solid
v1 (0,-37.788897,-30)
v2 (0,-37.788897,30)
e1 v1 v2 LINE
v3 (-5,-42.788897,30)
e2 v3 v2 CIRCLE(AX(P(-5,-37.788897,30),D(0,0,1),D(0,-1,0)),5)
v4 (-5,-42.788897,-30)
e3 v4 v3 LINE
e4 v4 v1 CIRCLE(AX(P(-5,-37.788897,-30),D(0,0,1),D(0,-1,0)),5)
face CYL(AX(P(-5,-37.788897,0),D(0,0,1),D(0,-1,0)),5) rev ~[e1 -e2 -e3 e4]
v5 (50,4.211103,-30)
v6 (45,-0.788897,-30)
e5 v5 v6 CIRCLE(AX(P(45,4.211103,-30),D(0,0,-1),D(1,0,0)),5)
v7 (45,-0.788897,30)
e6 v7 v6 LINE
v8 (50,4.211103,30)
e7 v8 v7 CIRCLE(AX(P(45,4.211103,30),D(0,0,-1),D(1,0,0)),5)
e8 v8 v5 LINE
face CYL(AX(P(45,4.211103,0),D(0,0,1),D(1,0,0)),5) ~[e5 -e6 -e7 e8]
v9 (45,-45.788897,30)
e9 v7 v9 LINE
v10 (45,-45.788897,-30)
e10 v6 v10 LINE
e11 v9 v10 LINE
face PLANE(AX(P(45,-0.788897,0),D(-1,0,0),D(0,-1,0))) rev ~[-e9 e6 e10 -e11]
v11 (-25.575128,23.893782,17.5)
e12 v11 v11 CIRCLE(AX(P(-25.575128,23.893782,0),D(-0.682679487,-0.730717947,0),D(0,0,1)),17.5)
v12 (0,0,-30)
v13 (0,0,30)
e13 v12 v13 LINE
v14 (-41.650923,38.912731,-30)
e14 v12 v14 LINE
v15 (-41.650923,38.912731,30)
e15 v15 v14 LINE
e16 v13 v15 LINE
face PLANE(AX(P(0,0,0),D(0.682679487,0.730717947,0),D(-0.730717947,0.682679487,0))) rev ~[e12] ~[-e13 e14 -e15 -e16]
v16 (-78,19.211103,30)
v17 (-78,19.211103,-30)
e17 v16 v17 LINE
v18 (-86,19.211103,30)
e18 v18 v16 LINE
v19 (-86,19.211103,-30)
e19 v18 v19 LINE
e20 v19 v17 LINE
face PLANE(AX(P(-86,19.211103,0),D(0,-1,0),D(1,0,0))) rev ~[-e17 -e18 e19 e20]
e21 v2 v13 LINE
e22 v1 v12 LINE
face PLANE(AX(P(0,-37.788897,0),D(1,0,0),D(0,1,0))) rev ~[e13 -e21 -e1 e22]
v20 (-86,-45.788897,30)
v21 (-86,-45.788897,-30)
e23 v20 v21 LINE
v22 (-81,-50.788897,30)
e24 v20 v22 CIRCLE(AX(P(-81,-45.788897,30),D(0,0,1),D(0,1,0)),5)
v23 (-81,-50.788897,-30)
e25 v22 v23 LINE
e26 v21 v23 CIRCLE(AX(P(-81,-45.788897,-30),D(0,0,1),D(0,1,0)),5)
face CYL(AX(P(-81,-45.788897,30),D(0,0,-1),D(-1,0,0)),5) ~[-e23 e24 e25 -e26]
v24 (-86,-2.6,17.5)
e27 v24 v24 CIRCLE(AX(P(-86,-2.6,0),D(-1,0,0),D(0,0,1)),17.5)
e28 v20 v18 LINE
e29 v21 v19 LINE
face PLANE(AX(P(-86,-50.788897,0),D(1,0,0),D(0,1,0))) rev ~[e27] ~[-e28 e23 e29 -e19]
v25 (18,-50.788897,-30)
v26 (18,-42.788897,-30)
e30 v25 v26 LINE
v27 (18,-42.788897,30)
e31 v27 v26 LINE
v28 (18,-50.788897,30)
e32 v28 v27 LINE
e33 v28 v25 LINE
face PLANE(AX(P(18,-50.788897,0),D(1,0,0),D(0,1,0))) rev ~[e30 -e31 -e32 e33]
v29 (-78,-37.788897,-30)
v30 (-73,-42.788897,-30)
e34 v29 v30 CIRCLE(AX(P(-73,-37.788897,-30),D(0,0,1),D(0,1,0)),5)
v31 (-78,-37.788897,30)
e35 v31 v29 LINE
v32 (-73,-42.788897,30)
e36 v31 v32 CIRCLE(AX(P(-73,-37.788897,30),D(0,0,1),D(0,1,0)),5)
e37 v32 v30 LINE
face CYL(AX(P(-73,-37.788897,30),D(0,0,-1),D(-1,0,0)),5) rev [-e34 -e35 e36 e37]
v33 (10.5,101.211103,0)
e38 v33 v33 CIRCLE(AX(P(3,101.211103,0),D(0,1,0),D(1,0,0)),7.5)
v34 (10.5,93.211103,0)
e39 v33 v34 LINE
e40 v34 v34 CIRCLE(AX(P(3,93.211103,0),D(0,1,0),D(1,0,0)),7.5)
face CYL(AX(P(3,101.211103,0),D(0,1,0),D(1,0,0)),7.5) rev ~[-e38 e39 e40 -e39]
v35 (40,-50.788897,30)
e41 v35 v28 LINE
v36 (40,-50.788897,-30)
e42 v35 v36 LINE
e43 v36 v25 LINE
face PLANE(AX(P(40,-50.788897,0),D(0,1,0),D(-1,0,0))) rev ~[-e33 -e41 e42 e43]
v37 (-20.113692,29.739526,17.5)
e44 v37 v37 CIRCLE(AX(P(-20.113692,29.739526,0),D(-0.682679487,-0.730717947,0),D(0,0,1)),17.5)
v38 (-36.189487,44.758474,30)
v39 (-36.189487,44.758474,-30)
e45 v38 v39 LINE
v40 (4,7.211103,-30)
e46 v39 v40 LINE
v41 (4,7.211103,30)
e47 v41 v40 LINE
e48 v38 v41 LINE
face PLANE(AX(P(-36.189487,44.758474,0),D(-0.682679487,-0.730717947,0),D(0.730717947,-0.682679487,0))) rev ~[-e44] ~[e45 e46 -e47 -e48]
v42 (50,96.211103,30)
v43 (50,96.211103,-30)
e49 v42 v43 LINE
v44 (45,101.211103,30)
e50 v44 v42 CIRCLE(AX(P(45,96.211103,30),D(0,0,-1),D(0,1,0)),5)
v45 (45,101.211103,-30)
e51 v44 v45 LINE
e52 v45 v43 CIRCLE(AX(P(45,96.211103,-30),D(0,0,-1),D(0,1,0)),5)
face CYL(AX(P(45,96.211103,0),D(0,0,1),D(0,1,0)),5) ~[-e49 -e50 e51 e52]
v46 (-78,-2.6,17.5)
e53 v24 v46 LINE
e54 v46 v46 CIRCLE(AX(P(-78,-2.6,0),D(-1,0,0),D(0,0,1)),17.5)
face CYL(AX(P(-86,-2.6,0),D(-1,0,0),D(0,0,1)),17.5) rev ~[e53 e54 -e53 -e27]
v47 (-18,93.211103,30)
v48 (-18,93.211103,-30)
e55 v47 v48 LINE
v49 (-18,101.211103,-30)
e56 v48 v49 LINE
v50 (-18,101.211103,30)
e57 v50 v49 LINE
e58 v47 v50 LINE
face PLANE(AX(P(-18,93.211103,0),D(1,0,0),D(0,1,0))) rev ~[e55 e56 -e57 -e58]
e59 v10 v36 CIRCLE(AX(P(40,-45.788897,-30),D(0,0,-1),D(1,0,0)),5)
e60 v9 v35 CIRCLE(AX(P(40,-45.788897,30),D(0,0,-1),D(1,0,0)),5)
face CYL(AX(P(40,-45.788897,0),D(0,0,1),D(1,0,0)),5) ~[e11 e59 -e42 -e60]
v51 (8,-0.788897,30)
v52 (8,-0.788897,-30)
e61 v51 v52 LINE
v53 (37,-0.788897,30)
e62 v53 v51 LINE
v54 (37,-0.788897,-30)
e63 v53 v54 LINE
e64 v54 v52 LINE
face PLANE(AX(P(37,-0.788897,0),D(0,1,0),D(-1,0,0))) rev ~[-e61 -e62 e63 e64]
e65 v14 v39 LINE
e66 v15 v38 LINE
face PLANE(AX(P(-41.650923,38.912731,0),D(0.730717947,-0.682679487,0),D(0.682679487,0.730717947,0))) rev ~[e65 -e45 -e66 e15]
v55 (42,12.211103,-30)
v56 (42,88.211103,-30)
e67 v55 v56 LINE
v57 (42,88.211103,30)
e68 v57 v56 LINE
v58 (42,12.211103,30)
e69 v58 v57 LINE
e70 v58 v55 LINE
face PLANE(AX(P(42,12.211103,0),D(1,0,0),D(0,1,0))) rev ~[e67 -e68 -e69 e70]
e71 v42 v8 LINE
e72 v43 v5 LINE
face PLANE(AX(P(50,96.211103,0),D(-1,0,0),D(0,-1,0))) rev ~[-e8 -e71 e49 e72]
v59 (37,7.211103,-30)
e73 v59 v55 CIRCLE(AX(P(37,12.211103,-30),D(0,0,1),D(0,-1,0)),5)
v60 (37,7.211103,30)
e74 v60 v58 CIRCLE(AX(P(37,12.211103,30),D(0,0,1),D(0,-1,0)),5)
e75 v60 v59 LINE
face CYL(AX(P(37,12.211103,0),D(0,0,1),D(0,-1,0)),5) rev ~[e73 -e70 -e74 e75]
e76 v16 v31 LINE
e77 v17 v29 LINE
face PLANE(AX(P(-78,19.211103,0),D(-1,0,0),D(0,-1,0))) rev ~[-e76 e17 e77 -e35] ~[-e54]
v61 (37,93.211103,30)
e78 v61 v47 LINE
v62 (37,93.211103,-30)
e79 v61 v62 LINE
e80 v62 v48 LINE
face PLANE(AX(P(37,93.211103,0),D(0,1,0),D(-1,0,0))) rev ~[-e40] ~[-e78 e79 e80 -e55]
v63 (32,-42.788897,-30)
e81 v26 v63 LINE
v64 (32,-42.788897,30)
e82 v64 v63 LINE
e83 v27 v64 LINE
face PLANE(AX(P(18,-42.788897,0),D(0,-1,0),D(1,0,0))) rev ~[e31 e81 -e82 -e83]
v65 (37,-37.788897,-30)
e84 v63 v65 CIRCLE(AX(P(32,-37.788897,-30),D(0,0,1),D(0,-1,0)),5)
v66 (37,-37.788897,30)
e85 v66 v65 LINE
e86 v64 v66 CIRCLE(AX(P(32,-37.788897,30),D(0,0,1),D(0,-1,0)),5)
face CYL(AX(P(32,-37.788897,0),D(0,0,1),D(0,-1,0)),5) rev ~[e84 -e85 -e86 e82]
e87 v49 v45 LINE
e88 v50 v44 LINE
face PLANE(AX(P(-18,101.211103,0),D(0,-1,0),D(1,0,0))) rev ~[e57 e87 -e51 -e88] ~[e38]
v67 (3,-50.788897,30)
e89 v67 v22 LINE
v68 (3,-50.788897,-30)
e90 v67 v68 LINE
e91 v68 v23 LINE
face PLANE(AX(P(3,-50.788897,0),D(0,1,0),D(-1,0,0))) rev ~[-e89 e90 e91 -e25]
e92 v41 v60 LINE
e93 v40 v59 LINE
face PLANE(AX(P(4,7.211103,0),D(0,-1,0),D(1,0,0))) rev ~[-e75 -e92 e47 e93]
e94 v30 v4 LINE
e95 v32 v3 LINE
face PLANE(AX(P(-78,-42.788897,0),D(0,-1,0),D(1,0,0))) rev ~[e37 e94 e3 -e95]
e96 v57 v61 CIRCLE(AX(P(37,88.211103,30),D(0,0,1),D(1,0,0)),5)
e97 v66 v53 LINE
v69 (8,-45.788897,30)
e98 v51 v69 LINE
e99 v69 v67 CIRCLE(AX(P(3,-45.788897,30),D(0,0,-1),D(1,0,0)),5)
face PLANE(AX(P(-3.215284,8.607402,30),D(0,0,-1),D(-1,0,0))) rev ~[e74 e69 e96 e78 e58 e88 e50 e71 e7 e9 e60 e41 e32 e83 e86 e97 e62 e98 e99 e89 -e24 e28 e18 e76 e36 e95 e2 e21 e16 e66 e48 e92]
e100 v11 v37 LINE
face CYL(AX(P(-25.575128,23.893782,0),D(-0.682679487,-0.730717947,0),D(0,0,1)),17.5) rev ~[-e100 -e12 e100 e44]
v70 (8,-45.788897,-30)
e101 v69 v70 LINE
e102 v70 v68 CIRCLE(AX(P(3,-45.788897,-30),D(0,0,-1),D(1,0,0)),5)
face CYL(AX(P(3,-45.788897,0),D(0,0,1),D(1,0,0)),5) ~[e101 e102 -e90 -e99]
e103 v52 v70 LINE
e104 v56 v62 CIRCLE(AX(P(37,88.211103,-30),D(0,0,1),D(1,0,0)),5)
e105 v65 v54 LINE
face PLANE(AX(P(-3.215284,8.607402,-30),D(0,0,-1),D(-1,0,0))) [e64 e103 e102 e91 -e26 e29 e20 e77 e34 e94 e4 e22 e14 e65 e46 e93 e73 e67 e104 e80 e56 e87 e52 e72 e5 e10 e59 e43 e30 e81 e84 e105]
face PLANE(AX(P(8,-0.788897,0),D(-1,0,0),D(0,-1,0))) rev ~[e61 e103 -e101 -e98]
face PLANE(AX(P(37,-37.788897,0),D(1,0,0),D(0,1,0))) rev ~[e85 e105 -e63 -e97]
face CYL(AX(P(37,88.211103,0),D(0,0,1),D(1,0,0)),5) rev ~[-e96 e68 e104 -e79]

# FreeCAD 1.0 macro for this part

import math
import FreeCAD as App
import Part
import Sketcher

V = App.Vector


def edges_at(feature, points):
    """Names of the edges that pass closest to the given points."""
    edges = feature.Shape.Edges
    near = lambda p: min(range(len(edges)), key=lambda i: edges[i].distToShape(Part.Vertex(*p))[0])
    return sorted({f"Edge{near(p) + 1}" for p in points})

doc = App.newDocument("Part")
body = doc.addObject("PartDesign::Body", "Body")

# Sketch on XY plane
sketch1 = body.newObject("Sketcher::SketchObject", "Sketch")
sketch1.AttachmentSupport = (doc.getObject("XY_Plane"), [""])
sketch1.MapMode = "FlatFace"
sketch1.addGeometry([
    Part.LineSegment(V(-41.650923, 38.912731, 0), V(0, 0, 0)),  # 0
    Part.LineSegment(V(0, 0, 0), V(0, -37.788897, 0)),  # 1
    Part.ArcOfCircle(Part.Circle(V(-5, -37.788897, 0), V(0, 0, 1), 5), math.radians(-90), math.radians(0)),  # 2
    Part.LineSegment(V(-5, -42.788897, 0), V(-78, -42.788897, 0)),  # 3
    Part.LineSegment(V(-78, -42.788897, 0), V(-78, 19.211103, 0)),  # 4
    Part.LineSegment(V(-78, 19.211103, 0), V(-86, 19.211103, 0)),  # 5
    Part.LineSegment(V(-86, 19.211103, 0), V(-86, -50.788897, 0)),  # 6
    Part.LineSegment(V(-86, -50.788897, 0), V(3, -50.788897, 0)),  # 7
    Part.ArcOfCircle(Part.Circle(V(3, -45.788897, 0), V(0, 0, 1), 5), math.radians(-90), math.radians(0)),  # 8
    Part.LineSegment(V(8, -45.788897, 0), V(8, -0.788897, 0)),  # 9
    Part.LineSegment(V(8, -0.788897, 0), V(37, -0.788897, 0)),  # 10
    Part.LineSegment(V(37, -0.788897, 0), V(37, -37.788897, 0)),  # 11
    Part.ArcOfCircle(Part.Circle(V(32, -37.788897, 0), V(0, 0, 1), 5), math.radians(-90), math.radians(0)),  # 12
    Part.LineSegment(V(32, -42.788897, 0), V(18, -42.788897, 0)),  # 13
    Part.LineSegment(V(18, -42.788897, 0), V(18, -50.788897, 0)),  # 14
    Part.LineSegment(V(18, -50.788897, 0), V(40, -50.788897, 0)),  # 15
    Part.ArcOfCircle(Part.Circle(V(40, -45.788897, 0), V(0, 0, 1), 5), math.radians(-90), math.radians(0)),  # 16
    Part.LineSegment(V(45, -45.788897, 0), V(45, -0.788897, 0)),  # 17
    Part.ArcOfCircle(Part.Circle(V(45, 4.211103, 0), V(0, 0, 1), 5), math.radians(-90), math.radians(0)),  # 18
    Part.LineSegment(V(50, 4.211103, 0), V(50, 96.211103, 0)),  # 19
    Part.ArcOfCircle(Part.Circle(V(45, 96.211103, 0), V(0, 0, 1), 5), math.radians(0), math.radians(90)),  # 20
    Part.LineSegment(V(45, 101.211103, 0), V(-18, 101.211103, 0)),  # 21
    Part.LineSegment(V(-18, 101.211103, 0), V(-18, 93.211103, 0)),  # 22
    Part.LineSegment(V(-18, 93.211103, 0), V(37, 93.211103, 0)),  # 23
    Part.ArcOfCircle(Part.Circle(V(37, 88.211103, 0), V(0, 0, 1), 5), math.radians(0), math.radians(90)),  # 24
    Part.LineSegment(V(42, 88.211103, 0), V(42, 12.211103, 0)),  # 25
    Part.ArcOfCircle(Part.Circle(V(37, 12.211103, 0), V(0, 0, 1), 5), math.radians(-90), math.radians(0)),  # 26
    Part.LineSegment(V(37, 7.211103, 0), V(4, 7.211103, 0)),  # 27
    Part.LineSegment(V(4, 7.211103, 0), V(-36.189487, 44.758474, 0)),  # 28
    Part.LineSegment(V(-36.189487, 44.758474, 0), V(-41.650923, 38.912731, 0)),  # 29
], False)
sketch1.addConstraint([
    Sketcher.Constraint("Coincident", 0, 2, 1, 1),
    Sketcher.Constraint("Tangent", 1, 2, 2, 2),
    Sketcher.Constraint("Tangent", 2, 1, 3, 1),
    Sketcher.Constraint("Coincident", 3, 2, 4, 1),
    Sketcher.Constraint("Coincident", 4, 2, 5, 1),
    Sketcher.Constraint("Coincident", 5, 2, 6, 1),
    Sketcher.Constraint("Coincident", 6, 2, 7, 1),
    Sketcher.Constraint("Tangent", 7, 2, 8, 1),
    Sketcher.Constraint("Tangent", 8, 2, 9, 1),
    Sketcher.Constraint("Coincident", 9, 2, 10, 1),
    Sketcher.Constraint("Coincident", 10, 2, 11, 1),
    Sketcher.Constraint("Tangent", 11, 2, 12, 2),
    Sketcher.Constraint("Tangent", 12, 1, 13, 1),
    Sketcher.Constraint("Coincident", 13, 2, 14, 1),
    Sketcher.Constraint("Coincident", 14, 2, 15, 1),
    Sketcher.Constraint("Tangent", 15, 2, 16, 1),
    Sketcher.Constraint("Tangent", 16, 2, 17, 1),
    Sketcher.Constraint("Coincident", 17, 2, 18, 1),
    Sketcher.Constraint("Tangent", 18, 2, 19, 1),
    Sketcher.Constraint("Tangent", 19, 2, 20, 1),
    Sketcher.Constraint("Tangent", 20, 2, 21, 1),
    Sketcher.Constraint("Coincident", 21, 2, 22, 1),
    Sketcher.Constraint("Coincident", 22, 2, 23, 1),
    Sketcher.Constraint("Tangent", 23, 2, 24, 2),
    Sketcher.Constraint("Tangent", 24, 1, 25, 1),
    Sketcher.Constraint("Tangent", 25, 2, 26, 2),
    Sketcher.Constraint("Tangent", 26, 1, 27, 1),
    Sketcher.Constraint("Coincident", 27, 2, 28, 1),
    Sketcher.Constraint("Coincident", 28, 2, 29, 1),
    Sketcher.Constraint("Coincident", 29, 2, 0, 1),
    Sketcher.Constraint("Vertical", 1),
    Sketcher.Constraint("Horizontal", 3),
    Sketcher.Constraint("Vertical", 4),
    Sketcher.Constraint("Horizontal", 5),
    Sketcher.Constraint("Vertical", 6),
    Sketcher.Constraint("Horizontal", 7),
    Sketcher.Constraint("Vertical", 9),
    Sketcher.Constraint("Horizontal", 10),
    Sketcher.Constraint("Vertical", 11),
    Sketcher.Constraint("Horizontal", 13),
    Sketcher.Constraint("Vertical", 14),
    Sketcher.Constraint("Horizontal", 15),
    Sketcher.Constraint("Vertical", 17),
    Sketcher.Constraint("Vertical", 19),
    Sketcher.Constraint("Horizontal", 21),
    Sketcher.Constraint("Vertical", 22),
    Sketcher.Constraint("Horizontal", 23),
    Sketcher.Constraint("Vertical", 25),
    Sketcher.Constraint("Horizontal", 27),
    Sketcher.Constraint("Coincident", 0, 2, -1, 1),
    Sketcher.Constraint("Equal", 2, 8),
    Sketcher.Constraint("Equal", 8, 12),
    Sketcher.Constraint("Equal", 12, 16),
    Sketcher.Constraint("Equal", 16, 18),
    Sketcher.Constraint("Equal", 18, 20),
    Sketcher.Constraint("Equal", 20, 24),
    Sketcher.Constraint("Equal", 24, 26),
    Sketcher.Constraint("Parallel", 0, 28),
    Sketcher.Constraint("Perpendicular", 28, 29),
    Sketcher.Constraint("Horizontal", 2, 3, 12, 3),
    Sketcher.Constraint("Horizontal", 8, 3, 16, 3),
    Sketcher.Constraint("Horizontal", 10, 2, 17, 2),
    Sketcher.Constraint("Vertical", 26, 3, 10, 2),
    Sketcher.Constraint("Vertical", 20, 3, 16, 2),
    Sketcher.Constraint("Equal", 5, 14),
    Sketcher.Constraint("Equal", 14, 22),
    Sketcher.Constraint("Radius", 2, 5.0),
    Sketcher.Constraint("DistanceX", 3, 2, 3, 1, 73.0),
    Sketcher.Constraint("DistanceX", 5, 2, 5, 1, 8.0),
    Sketcher.Constraint("DistanceX", 7, 1, 7, 2, 89.0),
    Sketcher.Constraint("DistanceX", 10, 1, 10, 2, 29.0),
    Sketcher.Constraint("DistanceX", 13, 2, 13, 1, 14.0),
    Sketcher.Constraint("DistanceX", 15, 1, 15, 2, 22.0),
    Sketcher.Constraint("DistanceX", 21, 2, 21, 1, 63.0),
    Sketcher.Constraint("DistanceX", 27, 2, 27, 1, 33.0),
    Sketcher.Constraint("DistanceY", 4, 1, 4, 2, 62.0),
    Sketcher.Constraint("DistanceY", 9, 1, 9, 2, 45.0),
    Sketcher.Constraint("DistanceY", 19, 1, 19, 2, 92.0),
    Sketcher.Constraint("DistanceY", 25, 2, 25, 1, 76.0),
    Sketcher.Constraint("Distance", 0, 57.0),
    Sketcher.Constraint("Distance", 28, 55.0),
    Sketcher.Constraint("Distance", 29, 8.0),
])
pad1 = body.newObject("PartDesign::Pad", "Pad")
pad1.Profile = sketch1
pad1.Length = 60
pad1.Midplane = True

# Sketch on an angled plane
sketch2 = body.newObject("Sketcher::SketchObject", "Sketch001")
sketch2.Placement = App.Placement(V(0, 0, 0), App.Rotation(V(0, 0, 1), V(-0.730717947, 0.682679487, 0), V(-0.682679487, -0.730717947, 0), "ZXY"))
sketch2.addGeometry(Part.Circle(V(0, 35, 0), V(0, 0, 1), 17.5), False)
sketch2.addConstraint([
    Sketcher.Constraint("PointOnObject", 0, 3, -2),
    Sketcher.Constraint("Diameter", 0, 35.0),
    Sketcher.Constraint("DistanceY", -1, 1, 0, 3, 35.0),
])
pocket1 = body.newObject("PartDesign::Pocket", "Pocket")
pocket1.Profile = sketch2
pocket1.Length = 8

# Sketch on YZ plane
sketch3 = body.newObject("Sketcher::SketchObject", "Sketch002")
sketch3.AttachmentSupport = (doc.getObject("YZ_Plane"), [""])
sketch3.MapMode = "FlatFace"
sketch3.AttachmentOffset = App.Placement(V(0, 0, -86), App.Rotation())
sketch3.addGeometry(Part.Circle(V(-2.6, 0, 0), V(0, 0, 1), 17.5), False)
sketch3.addConstraint([
    Sketcher.Constraint("PointOnObject", 0, 3, -1),
    Sketcher.Constraint("Diameter", 0, 35.0),
    Sketcher.Constraint("DistanceX", 0, 3, -1, 1, 2.6),
])
pocket2 = body.newObject("PartDesign::Pocket", "Pocket001")
pocket2.Profile = sketch3
pocket2.Length = 8
pocket2.Reversed = True
doc.recompute()

fillet = body.newObject("PartDesign::Fillet", "Fillet")
fillet.Base = (pocket2, edges_at(pocket2, [(-78, -42.789, 0)]))
fillet.Radius = 5
doc.recompute()

fillet2 = body.newObject("PartDesign::Fillet", "Fillet001")
fillet2.Base = (fillet, edges_at(fillet, [(-86, -50.789, 0)]))
fillet2.Radius = 5

# Sketch on XZ plane
sketch4 = body.newObject("Sketcher::SketchObject", "Sketch003")
sketch4.AttachmentSupport = (doc.getObject("XZ_Plane"), [""])
sketch4.MapMode = "FlatFace"
sketch4.AttachmentOffset = App.Placement(V(0, 0, -101.211103), App.Rotation())
sketch4.addGeometry(Part.Circle(V(3, 0, 0), V(0, 0, 1), 7.5), False)
sketch4.addConstraint([
    Sketcher.Constraint("PointOnObject", 0, 3, -1),
    Sketcher.Constraint("Diameter", 0, 15.0),
    Sketcher.Constraint("DistanceX", -1, 1, 0, 3, 3.0),
])
pocket3 = body.newObject("PartDesign::Pocket", "Pocket002")
pocket3.Profile = sketch4
pocket3.Length = 10
pocket3.Reversed = True

doc.recompute()
